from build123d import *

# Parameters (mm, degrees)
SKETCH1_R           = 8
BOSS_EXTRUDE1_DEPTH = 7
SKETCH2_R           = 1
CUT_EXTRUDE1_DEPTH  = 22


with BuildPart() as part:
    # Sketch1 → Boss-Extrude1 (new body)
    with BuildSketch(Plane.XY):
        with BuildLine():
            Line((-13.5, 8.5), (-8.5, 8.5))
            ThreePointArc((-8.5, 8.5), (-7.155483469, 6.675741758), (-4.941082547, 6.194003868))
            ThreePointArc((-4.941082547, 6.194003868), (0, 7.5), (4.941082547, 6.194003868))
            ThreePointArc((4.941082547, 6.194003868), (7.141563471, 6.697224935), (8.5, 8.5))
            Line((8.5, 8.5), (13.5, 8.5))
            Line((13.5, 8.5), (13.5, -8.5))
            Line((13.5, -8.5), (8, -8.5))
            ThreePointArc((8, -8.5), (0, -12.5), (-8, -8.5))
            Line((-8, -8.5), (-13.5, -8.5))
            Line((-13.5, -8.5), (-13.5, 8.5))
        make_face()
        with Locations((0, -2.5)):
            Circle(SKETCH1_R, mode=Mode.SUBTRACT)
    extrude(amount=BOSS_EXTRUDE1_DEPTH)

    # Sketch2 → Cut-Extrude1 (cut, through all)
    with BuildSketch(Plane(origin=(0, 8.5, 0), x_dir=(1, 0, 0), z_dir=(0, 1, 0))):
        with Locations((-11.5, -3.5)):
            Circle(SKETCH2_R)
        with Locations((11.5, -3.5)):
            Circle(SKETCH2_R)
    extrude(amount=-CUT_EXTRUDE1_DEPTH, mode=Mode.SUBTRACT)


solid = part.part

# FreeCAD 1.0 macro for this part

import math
import FreeCAD as App
import Part
import Sketcher

V = App.Vector

doc = App.newDocument("Part")
body = doc.addObject("PartDesign::Body", "Body")

# Sketch on XY plane
sketch1 = doc.addObject("Sketcher::SketchObject", "Sketch")
body.addObject(sketch1)
sketch1.AttachmentSupport = (doc.XY_Plane, [""])
sketch1.MapMode = "FlatFace"
sketch1.addGeometry(Part.LineSegment(V(-8.5, 8.5, 0), V(-13.5, 8.5, 0)), False)
sketch1.addGeometry(Part.LineSegment(V(-13.5, 8.5, 0), V(-13.5, -8.5, 0)), False)
sketch1.addGeometry(Part.LineSegment(V(-13.5, -8.5, 0), V(-8, -8.5, 0)), False)
sketch1.addGeometry(Part.ArcOfCircle(Part.Circle(V(0, -2.5, 0), V(0, 0, 1), 10), math.radians(-143.130102), math.radians(-36.869898)), False)
sketch1.addGeometry(Part.LineSegment(V(8, -8.5, 0), V(13.5, -8.5, 0)), False)
sketch1.addGeometry(Part.LineSegment(V(13.5, -8.5, 0), V(13.5, 8.5, 0)), False)
sketch1.addGeometry(Part.LineSegment(V(13.5, 8.5, 0), V(8.5, 8.5, 0)), False)
sketch1.addGeometry(Part.ArcOfCircle(Part.Circle(V(5.35227, 9.458698, 0), V(0, 0, 1), 3.290487), math.radians(-97.178596), math.radians(-16.939064)), False)
sketch1.addGeometry(Part.ArcOfCircle(Part.Circle(V(0, -2.5, 0), V(0, 0, 1), 10), math.radians(60.389035), math.radians(119.610965)), False)
sketch1.addGeometry(Part.ArcOfCircle(Part.Circle(V(-5.409758, 9.369975, 0), V(0, 0, 1), 3.210366), math.radians(-164.276846), math.radians(-81.605493)), False)
sketch1.addGeometry(Part.Circle(V(0, -2.5, 0), V(0, 0, 1), 8), False)
sketch1.addConstraint(Sketcher.Constraint("Coincident", 0, 2, 1, 1))
sketch1.addConstraint(Sketcher.Constraint("Coincident", 1, 2, 2, 1))
sketch1.addConstraint(Sketcher.Constraint("Coincident", 2, 2, 3, 1))
sketch1.addConstraint(Sketcher.Constraint("Coincident", 3, 2, 4, 1))
sketch1.addConstraint(Sketcher.Constraint("Coincident", 4, 2, 5, 1))
sketch1.addConstraint(Sketcher.Constraint("Coincident", 5, 2, 6, 1))
sketch1.addConstraint(Sketcher.Constraint("Coincident", 6, 2, 7, 2))
sketch1.addConstraint(Sketcher.Constraint("Coincident", 7, 1, 8, 1))
sketch1.addConstraint(Sketcher.Constraint("Coincident", 8, 2, 9, 2))
sketch1.addConstraint(Sketcher.Constraint("Coincident", 9, 1, 0, 1))
sketch1.addConstraint(Sketcher.Constraint("Horizontal", 0))
sketch1.addConstraint(Sketcher.Constraint("Vertical", 1))
sketch1.addConstraint(Sketcher.Constraint("Horizontal", 2))
sketch1.addConstraint(Sketcher.Constraint("Horizontal", 4))
sketch1.addConstraint(Sketcher.Constraint("Vertical", 5))
sketch1.addConstraint(Sketcher.Constraint("Horizontal", 6))
sketch1.addConstraint(Sketcher.Constraint("Coincident", 8, 3, 3, 3))
sketch1.addConstraint(Sketcher.Constraint("Coincident", 10, 3, 3, 3))
sketch1.addConstraint(Sketcher.Constraint("Equal", 3, 8))
sketch1.addConstraint(Sketcher.Constraint("Symmetric", 0, 2, 4, 2, -1, 1))
sketch1.addConstraint(Sketcher.Constraint("Symmetric", 2, 2, 3, 2, -2))
sketch1.addConstraint(Sketcher.Constraint("Symmetric", 6, 2, 9, 1, -2))
sketch1.addConstraint(Sketcher.Constraint("Horizontal", 7, 1, 8, 2))
sketch1.addConstraint(Sketcher.Constraint("Diameter", 10, 16.0))
sketch1.addConstraint(Sketcher.Constraint("Radius", 3, 10.0))
sketch1.addConstraint(Sketcher.Constraint("DistanceX", 0, 2, 0, 1, 5.0))
sketch1.addConstraint(Sketcher.Constraint("DistanceY", 1, 2, 1, 1, 17.0))
sketch1.addConstraint(Sketcher.Constraint("DistanceX", 2, 1, 2, 2, 5.5))
sketch1.addConstraint(Sketcher.Constraint("DistanceX", 2, 2, -1, 1, 8.0))
sketch1.addConstraint(Sketcher.Constraint("Radius", 7, 3.290487))
sketch1.addConstraint(Sketcher.Constraint("Radius", 9, 3.210366))
sketch1.addConstraint(Sketcher.Constraint("DistanceY", -1, 1, 7, 3, 9.458698))
pad1 = doc.addObject("PartDesign::Pad", "Pad")
body.addObject(pad1)
pad1.Profile = sketch1
pad1.Length = 7

# Sketch on XZ plane
sketch2 = doc.addObject("Sketcher::SketchObject", "Sketch001")
body.addObject(sketch2)
sketch2.AttachmentSupport = (doc.XZ_Plane, [""])
sketch2.MapMode = "FlatFace"
sketch2.AttachmentOffset = App.Placement(V(0, 0, -8.5), App.Rotation())
sketch2.addGeometry(Part.Circle(V(-11.5, 3.5, 0), V(0, 0, 1), 1), False)
sketch2.addGeometry(Part.Circle(V(11.5, 3.5, 0), V(0, 0, 1), 1), False)
sketch2.addConstraint(Sketcher.Constraint("Equal", 0, 1))
sketch2.addConstraint(Sketcher.Constraint("Symmetric", 0, 3, 1, 3, -2))
sketch2.addConstraint(Sketcher.Constraint("Diameter", 0, 2.0))
sketch2.addConstraint(Sketcher.Constraint("DistanceX", 0, 3, 1, 3, 23.0))
sketch2.addConstraint(Sketcher.Constraint("DistanceY", -1, 1, 0, 3, 3.5))
pocket1 = doc.addObject("PartDesign::Pocket", "Pocket")
body.addObject(pocket1)
pocket1.Profile = sketch2
pocket1.Type = "ThroughAll"
pocket1.Reversed = True

doc.recompute()
